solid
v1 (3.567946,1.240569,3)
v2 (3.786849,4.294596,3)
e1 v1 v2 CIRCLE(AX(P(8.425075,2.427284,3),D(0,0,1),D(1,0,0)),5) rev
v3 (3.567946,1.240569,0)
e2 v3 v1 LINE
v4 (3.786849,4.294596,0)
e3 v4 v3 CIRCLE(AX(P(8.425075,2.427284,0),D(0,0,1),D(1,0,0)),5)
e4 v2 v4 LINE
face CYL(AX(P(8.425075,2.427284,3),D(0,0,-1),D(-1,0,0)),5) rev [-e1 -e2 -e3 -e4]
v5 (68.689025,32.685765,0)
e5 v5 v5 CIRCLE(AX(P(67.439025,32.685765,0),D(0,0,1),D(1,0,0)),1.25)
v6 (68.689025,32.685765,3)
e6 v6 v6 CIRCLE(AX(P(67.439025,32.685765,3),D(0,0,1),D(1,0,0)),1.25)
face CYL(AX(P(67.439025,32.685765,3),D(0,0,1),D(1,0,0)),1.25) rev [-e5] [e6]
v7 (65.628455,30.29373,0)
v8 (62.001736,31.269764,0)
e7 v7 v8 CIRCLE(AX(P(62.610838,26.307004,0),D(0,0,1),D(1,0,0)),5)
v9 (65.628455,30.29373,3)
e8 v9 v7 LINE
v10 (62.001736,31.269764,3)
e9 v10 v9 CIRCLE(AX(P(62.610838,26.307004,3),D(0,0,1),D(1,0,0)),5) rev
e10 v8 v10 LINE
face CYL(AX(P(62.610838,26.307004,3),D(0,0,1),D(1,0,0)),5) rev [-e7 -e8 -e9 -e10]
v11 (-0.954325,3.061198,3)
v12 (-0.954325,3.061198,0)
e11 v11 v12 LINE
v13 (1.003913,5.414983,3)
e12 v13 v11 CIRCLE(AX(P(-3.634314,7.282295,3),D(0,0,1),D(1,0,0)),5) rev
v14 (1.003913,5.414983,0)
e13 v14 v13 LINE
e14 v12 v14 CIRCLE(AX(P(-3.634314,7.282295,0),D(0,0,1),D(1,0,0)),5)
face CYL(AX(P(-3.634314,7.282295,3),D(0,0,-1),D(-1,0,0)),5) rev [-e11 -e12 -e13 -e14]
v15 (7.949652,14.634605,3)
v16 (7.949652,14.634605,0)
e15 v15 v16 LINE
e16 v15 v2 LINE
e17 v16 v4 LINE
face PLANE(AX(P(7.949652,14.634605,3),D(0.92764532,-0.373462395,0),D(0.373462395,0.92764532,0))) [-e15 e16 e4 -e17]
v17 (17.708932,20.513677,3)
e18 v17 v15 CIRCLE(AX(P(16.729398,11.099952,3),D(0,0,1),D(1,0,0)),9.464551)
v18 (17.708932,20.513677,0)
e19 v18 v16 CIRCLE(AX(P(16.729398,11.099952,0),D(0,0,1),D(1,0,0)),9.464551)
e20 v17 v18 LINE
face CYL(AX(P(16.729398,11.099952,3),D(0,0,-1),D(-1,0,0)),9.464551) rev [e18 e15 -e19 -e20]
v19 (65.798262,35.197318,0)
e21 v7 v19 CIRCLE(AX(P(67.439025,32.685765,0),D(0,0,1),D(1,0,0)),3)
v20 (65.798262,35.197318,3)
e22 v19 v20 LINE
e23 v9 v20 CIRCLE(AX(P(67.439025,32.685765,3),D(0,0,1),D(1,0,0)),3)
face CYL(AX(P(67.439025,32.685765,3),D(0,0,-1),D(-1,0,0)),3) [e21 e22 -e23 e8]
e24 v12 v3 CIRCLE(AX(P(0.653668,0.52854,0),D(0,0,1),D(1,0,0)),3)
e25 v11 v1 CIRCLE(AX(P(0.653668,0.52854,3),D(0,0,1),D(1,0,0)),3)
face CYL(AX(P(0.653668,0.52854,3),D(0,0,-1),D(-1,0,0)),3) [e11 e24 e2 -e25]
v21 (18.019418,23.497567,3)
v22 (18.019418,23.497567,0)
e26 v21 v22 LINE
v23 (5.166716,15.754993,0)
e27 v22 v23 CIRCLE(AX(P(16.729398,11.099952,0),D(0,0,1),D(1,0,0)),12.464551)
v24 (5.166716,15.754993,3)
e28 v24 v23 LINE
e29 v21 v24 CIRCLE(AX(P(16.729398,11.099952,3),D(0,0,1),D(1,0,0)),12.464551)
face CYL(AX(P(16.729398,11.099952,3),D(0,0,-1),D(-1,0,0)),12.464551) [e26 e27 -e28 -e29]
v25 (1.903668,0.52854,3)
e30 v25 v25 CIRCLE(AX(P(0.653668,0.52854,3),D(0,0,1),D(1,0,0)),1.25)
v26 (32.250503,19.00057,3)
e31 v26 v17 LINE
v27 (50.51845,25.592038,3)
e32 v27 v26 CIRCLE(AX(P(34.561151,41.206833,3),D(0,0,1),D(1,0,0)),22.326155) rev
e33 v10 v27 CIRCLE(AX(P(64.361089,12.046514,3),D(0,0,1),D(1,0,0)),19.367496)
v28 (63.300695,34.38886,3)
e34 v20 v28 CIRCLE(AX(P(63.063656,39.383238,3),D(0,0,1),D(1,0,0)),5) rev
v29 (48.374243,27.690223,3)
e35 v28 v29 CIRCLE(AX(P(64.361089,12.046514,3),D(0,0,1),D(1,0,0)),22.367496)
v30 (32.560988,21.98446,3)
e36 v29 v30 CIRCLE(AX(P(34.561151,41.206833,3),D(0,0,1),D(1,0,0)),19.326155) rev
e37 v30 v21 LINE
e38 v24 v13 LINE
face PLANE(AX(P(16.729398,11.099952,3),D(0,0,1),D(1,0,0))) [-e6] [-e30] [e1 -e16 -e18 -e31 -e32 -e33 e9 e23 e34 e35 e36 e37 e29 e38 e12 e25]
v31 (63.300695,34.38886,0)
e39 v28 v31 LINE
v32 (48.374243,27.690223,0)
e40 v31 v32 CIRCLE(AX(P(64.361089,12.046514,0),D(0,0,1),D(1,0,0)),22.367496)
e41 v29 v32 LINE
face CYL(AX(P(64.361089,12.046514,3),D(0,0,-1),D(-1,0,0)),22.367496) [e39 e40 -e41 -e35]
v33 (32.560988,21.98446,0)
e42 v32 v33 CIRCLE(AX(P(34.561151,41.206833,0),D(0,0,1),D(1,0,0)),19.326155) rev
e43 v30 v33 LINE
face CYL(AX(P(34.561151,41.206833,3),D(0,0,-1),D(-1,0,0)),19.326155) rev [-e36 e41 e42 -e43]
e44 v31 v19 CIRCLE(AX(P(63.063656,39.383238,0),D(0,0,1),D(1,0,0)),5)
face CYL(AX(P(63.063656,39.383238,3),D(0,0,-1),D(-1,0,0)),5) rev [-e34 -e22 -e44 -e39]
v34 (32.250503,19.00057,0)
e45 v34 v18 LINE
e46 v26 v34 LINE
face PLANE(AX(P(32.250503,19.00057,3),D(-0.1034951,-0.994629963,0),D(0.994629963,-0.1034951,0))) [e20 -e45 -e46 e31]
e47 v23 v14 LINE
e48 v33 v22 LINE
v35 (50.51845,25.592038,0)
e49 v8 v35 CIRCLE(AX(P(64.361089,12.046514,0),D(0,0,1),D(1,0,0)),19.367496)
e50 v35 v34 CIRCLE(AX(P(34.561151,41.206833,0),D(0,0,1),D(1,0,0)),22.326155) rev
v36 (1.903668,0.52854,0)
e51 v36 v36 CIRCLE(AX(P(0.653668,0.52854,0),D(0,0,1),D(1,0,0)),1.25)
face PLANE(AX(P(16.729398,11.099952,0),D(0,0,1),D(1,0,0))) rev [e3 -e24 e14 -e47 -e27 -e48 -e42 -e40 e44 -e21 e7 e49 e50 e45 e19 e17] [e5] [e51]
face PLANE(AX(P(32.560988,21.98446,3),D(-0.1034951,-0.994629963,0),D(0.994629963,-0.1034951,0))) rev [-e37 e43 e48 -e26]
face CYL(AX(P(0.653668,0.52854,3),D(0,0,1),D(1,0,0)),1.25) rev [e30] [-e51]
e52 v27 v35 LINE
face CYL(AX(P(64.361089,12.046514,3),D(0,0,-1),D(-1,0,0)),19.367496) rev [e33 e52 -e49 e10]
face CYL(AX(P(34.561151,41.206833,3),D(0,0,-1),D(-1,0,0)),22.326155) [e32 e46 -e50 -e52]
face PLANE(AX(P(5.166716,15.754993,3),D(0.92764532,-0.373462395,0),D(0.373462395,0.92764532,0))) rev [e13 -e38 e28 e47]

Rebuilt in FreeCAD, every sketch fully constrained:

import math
import FreeCAD as App
import Part
import Sketcher

V = App.Vector
Q = App.Units.Quantity


def edges_at(feature, points):
    """Names of the edges that pass closest to the given points."""
    edges = feature.Shape.Edges
    near = lambda p: min(range(len(edges)), key=lambda i: edges[i].distToShape(Part.Vertex(*p))[0])
    return sorted({f"Edge{near(p) + 1}" for p in points})

doc = App.newDocument("Part")
body = doc.addObject("PartDesign::Body", "Body")

# Sketch on XY plane
sketch1 = doc.addObject("Sketcher::SketchObject", "Sketch")
body.addObject(sketch1)
sketch1.AttachmentSupport = (doc.XY_Plane, [""])
sketch1.MapMode = "FlatFace"
sketch1.addGeometry([
    Part.ArcOfCircle(Part.Circle(V(64.4, 12, 0), V(0, 0, 1), 22.4), math.radians(82), math.radians(136)),  # 0
    Part.ArcOfCircle(Part.Circle(V(34.6, 41.2, 0), V(0, 0, 1), 19.3), math.radians(-96), math.radians(-44)),  # 1
    Part.LineSegment(V(32.6, 22, 0), V(18, 23.5, 0)),  # 2
    Part.ArcOfCircle(Part.Circle(V(16.7, 11.1, 0), V(0, 0, 1), 12.5), math.radians(84), math.radians(158)),  # 3
    Part.LineSegment(V(5.2, 15.8, 0), V(-0.7, 1.1, 0)),  # 4
    Part.LineSegment(V(-0.7, 1.1, 0), V(2, 0, 0)),  # 5
    Part.LineSegment(V(2, 0, 0), V(7.9, 14.6, 0)),  # 6
    Part.ArcOfCircle(Part.Circle(V(16.7, 11.1, 0), V(0, 0, 1), 9.5), math.radians(84), math.radians(158)),  # 7
    Part.LineSegment(V(17.7, 20.5, 0), V(32.3, 19, 0)),  # 8
    Part.ArcOfCircle(Part.Circle(V(34.6, 41.2, 0), V(0, 0, 1), 22.3), math.radians(-96), math.radians(-44)),  # 9
    Part.ArcOfCircle(Part.Circle(V(64.4, 12, 0), V(0, 0, 1), 19.4), math.radians(82), math.radians(136)),  # 10
    Part.LineSegment(V(67.2, 31.2, 0), V(67.7, 34.2, 0)),  # 11
], False)
sketch1.addConstraint([
    Sketcher.Constraint("Tangent", 0, 2, 1, 2),
    Sketcher.Constraint("Tangent", 1, 1, 2, 1),
    Sketcher.Constraint("Tangent", 2, 2, 3, 1),
    Sketcher.Constraint("Tangent", 3, 2, 4, 1),
    Sketcher.Constraint("Coincident", 4, 2, 5, 1),
    Sketcher.Constraint("Coincident", 5, 2, 6, 1),
    Sketcher.Constraint("Tangent", 6, 2, 7, 2),
    Sketcher.Constraint("Tangent", 7, 1, 8, 1),
    Sketcher.Constraint("Tangent", 8, 2, 9, 1),
    Sketcher.Constraint("Tangent", 9, 2, 10, 2),
    Sketcher.Constraint("Coincident", 10, 1, 11, 1),
    Sketcher.Constraint("Coincident", 11, 2, 0, 1),
    Sketcher.Constraint("Coincident", 7, 3, 3, 3),
    Sketcher.Constraint("Coincident", 9, 3, 1, 3),
    Sketcher.Constraint("Coincident", 10, 3, 0, 3),
    Sketcher.Constraint("Perpendicular", 4, 5),
    Sketcher.Constraint("Perpendicular", 5, 6),
    Sketcher.Constraint("Parallel", 2, 8),
    Sketcher.Constraint("Distance", 5, Q("3 mm")),
    Sketcher.Constraint("Radius", 3, Q("12.464551 mm")),
    Sketcher.Constraint("Radius", 0, Q("22.367496 mm")),
    Sketcher.Constraint("Radius", 1, Q("19.326155 mm")),
    Sketcher.Constraint("Distance", 4, Q("15.810201 mm")),
    Sketcher.Constraint("DistanceX", 4, 2, -1, 1, Q("0.7378 mm")),
    Sketcher.Constraint("DistanceX", 3, 2, 2, 2, Q("12.852702 mm")),
    Sketcher.Constraint("Distance", 2, Q("14.620081 mm")),
    Sketcher.Constraint("DistanceX", -1, 1, 0, 3, Q("64.361089 mm")),
    Sketcher.Constraint("DistanceX", -1, 1, 1, 3, Q("34.561151 mm")),
    Sketcher.Constraint("DistanceY", -1, 1, 3, 3, Q("11.099952 mm")),
    Sketcher.Constraint("DistanceY", -1, 1, 11, 2, Q("34.169359 mm")),
    Sketcher.Constraint("DistanceY", 0, 2, 10, 1, Q("3.51195 mm")),
])
pad1 = doc.addObject("PartDesign::Pad", "Pad")
body.addObject(pad1)
pad1.Profile = sketch1
pad1.Length = 3

# Sketch on XY plane
sketch2 = doc.addObject("Sketcher::SketchObject", "Sketch001")
body.addObject(sketch2)
sketch2.AttachmentSupport = (doc.XY_Plane, [""])
sketch2.MapMode = "FlatFace"
sketch2.addGeometry([
    Part.Circle(V(0.7, 0.5, 0), V(0, 0, 1), 3),
    Part.Circle(V(67.4, 32.7, 0), V(0, 0, 1), 3),
], False)
sketch2.addConstraint([
    Sketcher.Constraint("Equal", 0, 1),
    Sketcher.Constraint("Diameter", 0, Q("6 mm")),
    Sketcher.Constraint("DistanceX", -1, 1, 0, 3, Q("0.653668 mm")),
    Sketcher.Constraint("DistanceY", -1, 1, 0, 3, Q("0.52854 mm")),
    Sketcher.Constraint("DistanceX", -1, 1, 1, 3, Q("67.439025 mm")),
    Sketcher.Constraint("DistanceY", -1, 1, 1, 3, Q("32.685765 mm")),
])
pad2 = doc.addObject("PartDesign::Pad", "Pad001")
body.addObject(pad2)
pad2.Profile = sketch2
pad2.Length = 3
doc.recompute()

fillet = doc.addObject("PartDesign::Fillet", "Fillet")
body.addObject(fillet)
fillet.Base = (pad2, edges_at(pad2, [
    (0.232, 3.499, 1.5),
    (3.015, 2.378, 1.5),
    (64.724, 31.411, 1.5),
    (64.981, 34.405, 1.5),
]))
fillet.Radius = 5

# Sketch on XY plane
sketch3 = doc.addObject("Sketcher::SketchObject", "Sketch002")
body.addObject(sketch3)
sketch3.AttachmentSupport = (doc.XY_Plane, [""])
sketch3.MapMode = "FlatFace"
sketch3.AttachmentOffset = App.Placement(V(0, 0, 3), App.Rotation())
sketch3.addGeometry([
    Part.Circle(V(67.4, 32.7, 0), V(0, 0, 1), 1.2),
    Part.Circle(V(0.7, 0.5, 0), V(0, 0, 1), 1.2),
], False)
sketch3.addConstraint([
    Sketcher.Constraint("Equal", 0, 1),
    Sketcher.Constraint("Diameter", 0, Q("2.5 mm")),
    Sketcher.Constraint("DistanceX", -1, 1, 1, 3, Q("0.653668 mm")),
    Sketcher.Constraint("DistanceY", -1, 1, 1, 3, Q("0.52854 mm")),
    Sketcher.Constraint("DistanceX", -1, 1, 0, 3, Q("67.439025 mm")),
    Sketcher.Constraint("DistanceY", -1, 1, 0, 3, Q("32.685765 mm")),
])
doc.recompute()
hole = doc.addObject("PartDesign::Hole", "Hole")
body.addObject(hole)
hole.Profile = sketch3
hole.ThreadType = "None"
hole.Diameter = 2.5
hole.DepthType = "ThroughAll"

doc.recompute()
